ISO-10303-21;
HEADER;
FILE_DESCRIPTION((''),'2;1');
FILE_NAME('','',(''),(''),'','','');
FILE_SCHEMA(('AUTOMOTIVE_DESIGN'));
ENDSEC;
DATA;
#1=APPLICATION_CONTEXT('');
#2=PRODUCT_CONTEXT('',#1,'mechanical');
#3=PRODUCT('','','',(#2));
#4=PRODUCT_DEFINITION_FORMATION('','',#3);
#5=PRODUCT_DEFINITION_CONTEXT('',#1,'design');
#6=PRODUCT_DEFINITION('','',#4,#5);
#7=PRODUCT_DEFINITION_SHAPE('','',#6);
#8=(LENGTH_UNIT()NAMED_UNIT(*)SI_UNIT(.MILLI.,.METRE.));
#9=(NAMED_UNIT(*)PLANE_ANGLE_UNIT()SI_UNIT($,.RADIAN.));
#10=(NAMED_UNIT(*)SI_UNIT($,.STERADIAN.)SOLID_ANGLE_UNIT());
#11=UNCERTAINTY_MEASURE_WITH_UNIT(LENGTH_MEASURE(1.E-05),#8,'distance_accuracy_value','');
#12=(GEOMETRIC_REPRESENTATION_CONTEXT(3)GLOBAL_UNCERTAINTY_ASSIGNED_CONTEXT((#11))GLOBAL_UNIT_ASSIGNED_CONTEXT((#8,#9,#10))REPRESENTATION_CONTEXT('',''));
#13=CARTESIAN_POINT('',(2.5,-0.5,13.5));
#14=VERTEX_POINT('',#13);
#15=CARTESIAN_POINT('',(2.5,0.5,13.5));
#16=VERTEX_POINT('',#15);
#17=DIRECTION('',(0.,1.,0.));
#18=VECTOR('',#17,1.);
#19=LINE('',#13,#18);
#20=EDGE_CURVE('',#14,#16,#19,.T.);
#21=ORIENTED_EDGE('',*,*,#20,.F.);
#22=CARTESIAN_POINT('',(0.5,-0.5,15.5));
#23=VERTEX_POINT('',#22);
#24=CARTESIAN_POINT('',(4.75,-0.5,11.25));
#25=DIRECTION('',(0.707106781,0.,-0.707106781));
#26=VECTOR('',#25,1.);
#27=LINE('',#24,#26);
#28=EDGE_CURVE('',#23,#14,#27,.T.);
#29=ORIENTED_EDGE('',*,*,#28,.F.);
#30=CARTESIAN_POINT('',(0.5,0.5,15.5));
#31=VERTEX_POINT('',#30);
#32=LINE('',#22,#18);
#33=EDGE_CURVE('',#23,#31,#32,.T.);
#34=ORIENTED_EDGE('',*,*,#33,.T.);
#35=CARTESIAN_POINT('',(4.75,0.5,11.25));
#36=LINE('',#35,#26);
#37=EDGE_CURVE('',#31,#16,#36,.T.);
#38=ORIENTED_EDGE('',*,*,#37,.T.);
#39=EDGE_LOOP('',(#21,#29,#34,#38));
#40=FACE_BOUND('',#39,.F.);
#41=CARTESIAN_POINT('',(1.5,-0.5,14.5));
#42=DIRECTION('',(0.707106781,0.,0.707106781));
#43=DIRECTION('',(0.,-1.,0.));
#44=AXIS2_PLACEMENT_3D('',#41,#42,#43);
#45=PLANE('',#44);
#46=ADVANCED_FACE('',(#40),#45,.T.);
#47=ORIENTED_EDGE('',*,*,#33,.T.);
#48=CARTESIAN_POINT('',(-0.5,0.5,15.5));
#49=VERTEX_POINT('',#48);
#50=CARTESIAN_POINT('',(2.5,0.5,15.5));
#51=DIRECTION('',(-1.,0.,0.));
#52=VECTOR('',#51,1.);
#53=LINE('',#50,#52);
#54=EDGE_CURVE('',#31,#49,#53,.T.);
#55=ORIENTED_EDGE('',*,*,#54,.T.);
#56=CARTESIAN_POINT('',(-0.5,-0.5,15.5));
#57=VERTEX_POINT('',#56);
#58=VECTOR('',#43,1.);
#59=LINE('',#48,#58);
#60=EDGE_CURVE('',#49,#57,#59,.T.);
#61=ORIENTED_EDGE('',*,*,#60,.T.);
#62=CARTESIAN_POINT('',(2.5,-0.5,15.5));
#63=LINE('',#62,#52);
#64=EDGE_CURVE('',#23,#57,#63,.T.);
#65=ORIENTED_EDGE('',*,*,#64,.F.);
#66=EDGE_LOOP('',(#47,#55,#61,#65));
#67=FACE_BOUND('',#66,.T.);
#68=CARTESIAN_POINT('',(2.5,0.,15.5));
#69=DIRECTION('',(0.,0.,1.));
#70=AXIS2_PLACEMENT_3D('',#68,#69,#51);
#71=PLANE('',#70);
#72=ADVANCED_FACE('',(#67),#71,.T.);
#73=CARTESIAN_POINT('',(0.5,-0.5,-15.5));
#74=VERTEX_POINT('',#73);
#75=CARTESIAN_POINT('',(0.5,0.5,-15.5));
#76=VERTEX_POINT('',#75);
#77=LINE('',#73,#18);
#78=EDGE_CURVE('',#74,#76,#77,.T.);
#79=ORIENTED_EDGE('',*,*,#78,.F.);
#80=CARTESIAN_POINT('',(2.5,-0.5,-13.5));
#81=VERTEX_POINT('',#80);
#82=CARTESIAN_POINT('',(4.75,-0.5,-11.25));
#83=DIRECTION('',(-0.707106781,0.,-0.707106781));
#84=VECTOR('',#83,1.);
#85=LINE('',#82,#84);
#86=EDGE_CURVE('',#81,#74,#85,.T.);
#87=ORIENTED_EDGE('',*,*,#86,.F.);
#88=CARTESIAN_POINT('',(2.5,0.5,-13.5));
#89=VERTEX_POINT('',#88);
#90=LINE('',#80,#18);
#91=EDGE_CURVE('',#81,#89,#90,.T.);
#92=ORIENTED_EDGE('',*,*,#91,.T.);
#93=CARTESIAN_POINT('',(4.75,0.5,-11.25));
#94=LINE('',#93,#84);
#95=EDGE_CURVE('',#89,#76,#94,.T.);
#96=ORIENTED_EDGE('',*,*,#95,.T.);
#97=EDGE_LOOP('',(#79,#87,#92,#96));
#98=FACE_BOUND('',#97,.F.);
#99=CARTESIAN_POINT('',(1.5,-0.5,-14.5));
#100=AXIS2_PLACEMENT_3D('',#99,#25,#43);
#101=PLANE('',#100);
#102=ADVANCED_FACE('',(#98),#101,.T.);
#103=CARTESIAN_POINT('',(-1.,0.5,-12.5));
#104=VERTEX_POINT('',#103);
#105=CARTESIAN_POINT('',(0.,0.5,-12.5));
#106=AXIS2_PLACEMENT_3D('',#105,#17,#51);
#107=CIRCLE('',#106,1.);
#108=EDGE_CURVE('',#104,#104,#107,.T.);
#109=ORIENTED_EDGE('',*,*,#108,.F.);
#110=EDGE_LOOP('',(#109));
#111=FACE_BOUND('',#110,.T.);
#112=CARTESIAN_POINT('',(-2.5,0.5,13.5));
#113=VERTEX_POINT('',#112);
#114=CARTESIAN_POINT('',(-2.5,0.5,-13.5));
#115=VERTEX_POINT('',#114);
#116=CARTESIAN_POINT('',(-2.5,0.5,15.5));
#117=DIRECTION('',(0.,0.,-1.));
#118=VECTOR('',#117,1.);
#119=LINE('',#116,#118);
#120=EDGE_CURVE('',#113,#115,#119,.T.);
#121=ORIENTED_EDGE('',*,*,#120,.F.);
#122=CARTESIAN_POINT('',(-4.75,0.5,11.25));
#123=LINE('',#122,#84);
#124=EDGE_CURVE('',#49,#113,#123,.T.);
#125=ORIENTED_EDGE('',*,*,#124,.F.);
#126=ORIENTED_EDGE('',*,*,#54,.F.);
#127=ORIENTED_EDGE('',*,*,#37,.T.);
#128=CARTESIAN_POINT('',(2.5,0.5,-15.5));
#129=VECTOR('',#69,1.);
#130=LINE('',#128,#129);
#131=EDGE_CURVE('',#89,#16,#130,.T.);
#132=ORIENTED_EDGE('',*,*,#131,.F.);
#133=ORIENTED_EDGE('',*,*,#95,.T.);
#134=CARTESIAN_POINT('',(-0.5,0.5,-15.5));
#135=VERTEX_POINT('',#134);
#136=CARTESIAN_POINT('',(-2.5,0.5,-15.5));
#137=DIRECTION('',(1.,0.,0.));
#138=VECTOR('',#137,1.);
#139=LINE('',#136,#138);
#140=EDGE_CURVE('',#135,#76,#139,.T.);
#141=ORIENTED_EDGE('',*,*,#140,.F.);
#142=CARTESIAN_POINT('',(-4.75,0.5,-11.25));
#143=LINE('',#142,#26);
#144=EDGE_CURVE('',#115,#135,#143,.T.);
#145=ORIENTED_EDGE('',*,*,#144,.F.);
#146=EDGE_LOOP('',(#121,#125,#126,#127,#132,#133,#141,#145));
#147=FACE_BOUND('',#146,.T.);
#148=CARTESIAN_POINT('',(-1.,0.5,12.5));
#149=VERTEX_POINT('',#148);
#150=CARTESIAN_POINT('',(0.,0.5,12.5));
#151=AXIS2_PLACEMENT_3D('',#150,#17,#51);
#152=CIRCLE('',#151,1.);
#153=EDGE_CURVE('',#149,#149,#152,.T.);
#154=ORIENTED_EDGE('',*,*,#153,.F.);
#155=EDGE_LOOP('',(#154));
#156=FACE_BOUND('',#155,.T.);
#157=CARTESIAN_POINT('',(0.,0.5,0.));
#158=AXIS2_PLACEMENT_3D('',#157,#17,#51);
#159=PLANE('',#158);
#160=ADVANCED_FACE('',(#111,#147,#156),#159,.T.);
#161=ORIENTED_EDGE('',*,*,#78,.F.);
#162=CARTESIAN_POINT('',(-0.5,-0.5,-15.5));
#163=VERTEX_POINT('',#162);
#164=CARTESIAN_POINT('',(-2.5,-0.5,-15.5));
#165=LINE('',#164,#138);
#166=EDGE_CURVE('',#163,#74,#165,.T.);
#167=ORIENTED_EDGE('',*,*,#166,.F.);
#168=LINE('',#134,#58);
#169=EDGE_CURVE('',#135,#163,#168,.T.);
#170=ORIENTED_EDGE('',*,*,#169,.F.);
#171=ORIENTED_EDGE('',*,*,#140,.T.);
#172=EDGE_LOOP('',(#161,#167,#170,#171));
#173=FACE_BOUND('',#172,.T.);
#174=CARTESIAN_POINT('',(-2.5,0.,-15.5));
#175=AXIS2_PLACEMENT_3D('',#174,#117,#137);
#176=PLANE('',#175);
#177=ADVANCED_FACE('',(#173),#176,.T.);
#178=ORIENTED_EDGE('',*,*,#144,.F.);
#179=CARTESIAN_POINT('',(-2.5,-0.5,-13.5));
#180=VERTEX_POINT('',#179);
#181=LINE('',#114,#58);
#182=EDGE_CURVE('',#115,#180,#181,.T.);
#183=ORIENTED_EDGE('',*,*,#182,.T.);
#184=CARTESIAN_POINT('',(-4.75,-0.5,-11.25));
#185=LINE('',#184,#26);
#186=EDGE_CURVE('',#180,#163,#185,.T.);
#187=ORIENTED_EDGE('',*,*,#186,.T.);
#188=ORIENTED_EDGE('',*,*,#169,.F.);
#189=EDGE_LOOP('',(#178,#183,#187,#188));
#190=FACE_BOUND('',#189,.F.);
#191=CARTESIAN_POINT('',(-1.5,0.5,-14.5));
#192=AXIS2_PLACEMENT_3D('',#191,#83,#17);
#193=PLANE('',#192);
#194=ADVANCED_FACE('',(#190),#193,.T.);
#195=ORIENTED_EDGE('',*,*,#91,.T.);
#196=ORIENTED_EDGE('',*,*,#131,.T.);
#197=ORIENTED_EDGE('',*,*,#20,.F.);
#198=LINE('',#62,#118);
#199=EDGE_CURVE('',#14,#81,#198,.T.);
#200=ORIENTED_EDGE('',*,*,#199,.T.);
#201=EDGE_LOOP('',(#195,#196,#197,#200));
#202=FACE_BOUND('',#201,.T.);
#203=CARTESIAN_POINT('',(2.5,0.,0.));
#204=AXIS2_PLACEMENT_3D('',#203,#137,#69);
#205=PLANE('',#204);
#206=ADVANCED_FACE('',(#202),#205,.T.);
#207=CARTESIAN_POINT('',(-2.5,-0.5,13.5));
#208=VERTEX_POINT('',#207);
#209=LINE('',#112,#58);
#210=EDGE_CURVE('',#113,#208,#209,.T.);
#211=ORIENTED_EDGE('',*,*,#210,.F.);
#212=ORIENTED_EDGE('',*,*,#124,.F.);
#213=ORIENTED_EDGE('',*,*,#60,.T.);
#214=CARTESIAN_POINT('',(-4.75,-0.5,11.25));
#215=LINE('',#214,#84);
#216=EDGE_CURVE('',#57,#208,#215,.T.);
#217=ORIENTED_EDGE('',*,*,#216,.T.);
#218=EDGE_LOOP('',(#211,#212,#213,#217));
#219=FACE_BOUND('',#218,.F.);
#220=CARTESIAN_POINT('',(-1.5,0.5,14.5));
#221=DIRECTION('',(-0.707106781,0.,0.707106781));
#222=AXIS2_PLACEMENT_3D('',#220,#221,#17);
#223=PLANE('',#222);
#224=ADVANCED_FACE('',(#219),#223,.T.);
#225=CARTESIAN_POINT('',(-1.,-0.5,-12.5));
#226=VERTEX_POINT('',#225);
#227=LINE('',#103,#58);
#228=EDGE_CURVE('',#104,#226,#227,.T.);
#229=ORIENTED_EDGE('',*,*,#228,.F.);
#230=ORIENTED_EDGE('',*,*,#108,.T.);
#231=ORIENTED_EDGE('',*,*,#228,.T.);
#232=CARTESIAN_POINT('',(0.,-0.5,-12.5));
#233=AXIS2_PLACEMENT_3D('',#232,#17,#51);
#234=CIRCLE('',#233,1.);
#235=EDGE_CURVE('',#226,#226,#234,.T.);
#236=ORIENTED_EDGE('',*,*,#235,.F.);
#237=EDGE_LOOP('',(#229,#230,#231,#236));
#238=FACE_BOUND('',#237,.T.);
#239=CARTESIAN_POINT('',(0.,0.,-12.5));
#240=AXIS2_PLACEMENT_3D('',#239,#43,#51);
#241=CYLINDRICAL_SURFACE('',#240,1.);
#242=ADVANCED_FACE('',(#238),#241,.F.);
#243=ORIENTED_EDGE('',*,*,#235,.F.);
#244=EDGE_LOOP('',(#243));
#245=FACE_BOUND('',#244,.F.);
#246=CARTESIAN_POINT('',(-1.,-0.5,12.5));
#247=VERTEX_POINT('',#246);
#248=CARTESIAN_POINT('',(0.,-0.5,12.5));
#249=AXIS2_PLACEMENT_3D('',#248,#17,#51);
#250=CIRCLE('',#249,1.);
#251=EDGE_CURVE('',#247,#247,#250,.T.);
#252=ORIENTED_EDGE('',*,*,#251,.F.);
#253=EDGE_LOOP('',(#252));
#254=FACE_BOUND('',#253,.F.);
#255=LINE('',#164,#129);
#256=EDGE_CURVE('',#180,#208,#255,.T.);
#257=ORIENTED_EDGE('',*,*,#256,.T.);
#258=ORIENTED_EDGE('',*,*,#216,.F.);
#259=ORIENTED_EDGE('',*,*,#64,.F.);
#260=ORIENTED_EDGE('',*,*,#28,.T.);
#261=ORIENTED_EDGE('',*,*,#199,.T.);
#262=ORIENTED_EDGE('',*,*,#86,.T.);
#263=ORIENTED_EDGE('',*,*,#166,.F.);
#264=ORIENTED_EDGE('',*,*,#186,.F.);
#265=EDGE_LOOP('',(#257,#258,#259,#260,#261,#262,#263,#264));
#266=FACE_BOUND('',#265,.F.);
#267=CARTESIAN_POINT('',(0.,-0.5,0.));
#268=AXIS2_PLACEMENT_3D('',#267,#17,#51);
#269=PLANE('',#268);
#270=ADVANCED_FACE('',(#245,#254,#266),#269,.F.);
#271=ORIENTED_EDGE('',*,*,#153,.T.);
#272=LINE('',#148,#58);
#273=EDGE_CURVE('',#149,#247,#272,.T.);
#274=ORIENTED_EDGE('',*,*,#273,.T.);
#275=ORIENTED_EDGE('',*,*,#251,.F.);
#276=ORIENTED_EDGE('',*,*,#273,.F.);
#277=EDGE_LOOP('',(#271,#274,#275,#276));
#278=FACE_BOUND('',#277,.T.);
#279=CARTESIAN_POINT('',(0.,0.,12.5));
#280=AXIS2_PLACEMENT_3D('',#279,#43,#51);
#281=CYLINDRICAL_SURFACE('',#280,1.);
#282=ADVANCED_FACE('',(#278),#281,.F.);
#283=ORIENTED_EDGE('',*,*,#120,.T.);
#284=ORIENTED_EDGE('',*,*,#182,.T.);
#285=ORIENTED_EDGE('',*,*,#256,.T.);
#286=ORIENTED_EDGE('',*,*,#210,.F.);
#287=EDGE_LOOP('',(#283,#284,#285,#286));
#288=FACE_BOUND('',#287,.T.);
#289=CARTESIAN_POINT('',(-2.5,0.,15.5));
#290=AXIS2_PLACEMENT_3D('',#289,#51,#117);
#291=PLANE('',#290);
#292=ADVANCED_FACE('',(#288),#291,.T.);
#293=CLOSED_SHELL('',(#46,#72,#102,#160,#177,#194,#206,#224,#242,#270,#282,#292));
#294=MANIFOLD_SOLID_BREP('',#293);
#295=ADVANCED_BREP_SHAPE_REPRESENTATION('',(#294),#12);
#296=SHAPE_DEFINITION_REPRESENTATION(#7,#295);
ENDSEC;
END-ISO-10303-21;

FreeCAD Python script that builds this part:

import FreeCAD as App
import Part
import Sketcher
from FreeCAD import Vector
Q = App.Units.Quantity


def edges_at(feature, points):
    """Names of the edges that pass closest to the given points."""
    edges = feature.Shape.Edges
    near = lambda p: min(range(len(edges)), key=lambda i: edges[i].distToShape(Part.Vertex(*p))[0])
    return sorted({f"Edge{near(p) + 1}" for p in points})


def add_polygon(sketch, points):
    """Adds a closed chain of lines whose ends are joined by coincident constraints."""
    first, n = sketch.GeometryCount, len(points)
    for a, b in zip(points, points[1:] + points[:1]):
        sketch.addGeometry(Part.LineSegment(App.Vector(*a, 0), App.Vector(*b, 0)), False)
    for i in range(n):
        sketch.addConstraint(Sketcher.Constraint("Coincident", first + i, 2, first + (i + 1) % n, 1))

doc = App.newDocument("Part")
body = doc.addObject("PartDesign::Body", "Body")

sketch1 = doc.addObject("Sketcher::SketchObject", "Sketch")
body.addObject(sketch1)
sketch1.AttachmentSupport = (doc.XZ_Plane, [""])
sketch1.MapMode = "FlatFace"
add_polygon(sketch1, [(-2.5, 15.5), (2.5, 15.5), (2.5, -15.5), (-2.5, -15.5)])
sketch1.addGeometry(Part.Circle(Vector(0, 12.5, 0), Vector(0, 0, 1), 1), False)
sketch1.addGeometry(Part.Circle(Vector(0, -12.5, 0), Vector(0, 0, 1), 1), False)
sketch1.addConstraint([
    Sketcher.Constraint("Horizontal", 0),
    Sketcher.Constraint("Vertical", 1),
    Sketcher.Constraint("Horizontal", 2),
    Sketcher.Constraint("Vertical", 3),
    Sketcher.Constraint("Equal", 4, 5),
    Sketcher.Constraint("Symmetric", 4, 3, 5, 3, -1, 1),
    Sketcher.Constraint("Symmetric", 0, 2, 2, 2, -1, 1),
    Sketcher.Constraint("PointOnObject", 4, 3, -2),
    Sketcher.Constraint("Diameter", 4, Q("2 mm")),
    Sketcher.Constraint("DistanceX", 0, 1, 0, 2, Q("5 mm")),
    Sketcher.Constraint("DistanceY", 5, 3, 4, 3, Q("25 mm")),
    Sketcher.Constraint("DistanceY", 4, 3, 0, 2, Q("3 mm")),
])
pad1 = doc.addObject("PartDesign::Pad", "Pad")
body.addObject(pad1)
pad1.Profile = sketch1
pad1.Length = 1
pad1.Midplane = True
doc.recompute()

chamfer = doc.addObject("PartDesign::Chamfer", "Chamfer")
body.addObject(chamfer)
chamfer.Base = (pad1, edges_at(pad1, [
    (-2.5, 0, 15.5),
    (2.5, 0, 15.5),
    (-2.5, 0, -15.5),
    (2.5, 0, -15.5),
]))
chamfer.Size = 2

doc.recompute()
